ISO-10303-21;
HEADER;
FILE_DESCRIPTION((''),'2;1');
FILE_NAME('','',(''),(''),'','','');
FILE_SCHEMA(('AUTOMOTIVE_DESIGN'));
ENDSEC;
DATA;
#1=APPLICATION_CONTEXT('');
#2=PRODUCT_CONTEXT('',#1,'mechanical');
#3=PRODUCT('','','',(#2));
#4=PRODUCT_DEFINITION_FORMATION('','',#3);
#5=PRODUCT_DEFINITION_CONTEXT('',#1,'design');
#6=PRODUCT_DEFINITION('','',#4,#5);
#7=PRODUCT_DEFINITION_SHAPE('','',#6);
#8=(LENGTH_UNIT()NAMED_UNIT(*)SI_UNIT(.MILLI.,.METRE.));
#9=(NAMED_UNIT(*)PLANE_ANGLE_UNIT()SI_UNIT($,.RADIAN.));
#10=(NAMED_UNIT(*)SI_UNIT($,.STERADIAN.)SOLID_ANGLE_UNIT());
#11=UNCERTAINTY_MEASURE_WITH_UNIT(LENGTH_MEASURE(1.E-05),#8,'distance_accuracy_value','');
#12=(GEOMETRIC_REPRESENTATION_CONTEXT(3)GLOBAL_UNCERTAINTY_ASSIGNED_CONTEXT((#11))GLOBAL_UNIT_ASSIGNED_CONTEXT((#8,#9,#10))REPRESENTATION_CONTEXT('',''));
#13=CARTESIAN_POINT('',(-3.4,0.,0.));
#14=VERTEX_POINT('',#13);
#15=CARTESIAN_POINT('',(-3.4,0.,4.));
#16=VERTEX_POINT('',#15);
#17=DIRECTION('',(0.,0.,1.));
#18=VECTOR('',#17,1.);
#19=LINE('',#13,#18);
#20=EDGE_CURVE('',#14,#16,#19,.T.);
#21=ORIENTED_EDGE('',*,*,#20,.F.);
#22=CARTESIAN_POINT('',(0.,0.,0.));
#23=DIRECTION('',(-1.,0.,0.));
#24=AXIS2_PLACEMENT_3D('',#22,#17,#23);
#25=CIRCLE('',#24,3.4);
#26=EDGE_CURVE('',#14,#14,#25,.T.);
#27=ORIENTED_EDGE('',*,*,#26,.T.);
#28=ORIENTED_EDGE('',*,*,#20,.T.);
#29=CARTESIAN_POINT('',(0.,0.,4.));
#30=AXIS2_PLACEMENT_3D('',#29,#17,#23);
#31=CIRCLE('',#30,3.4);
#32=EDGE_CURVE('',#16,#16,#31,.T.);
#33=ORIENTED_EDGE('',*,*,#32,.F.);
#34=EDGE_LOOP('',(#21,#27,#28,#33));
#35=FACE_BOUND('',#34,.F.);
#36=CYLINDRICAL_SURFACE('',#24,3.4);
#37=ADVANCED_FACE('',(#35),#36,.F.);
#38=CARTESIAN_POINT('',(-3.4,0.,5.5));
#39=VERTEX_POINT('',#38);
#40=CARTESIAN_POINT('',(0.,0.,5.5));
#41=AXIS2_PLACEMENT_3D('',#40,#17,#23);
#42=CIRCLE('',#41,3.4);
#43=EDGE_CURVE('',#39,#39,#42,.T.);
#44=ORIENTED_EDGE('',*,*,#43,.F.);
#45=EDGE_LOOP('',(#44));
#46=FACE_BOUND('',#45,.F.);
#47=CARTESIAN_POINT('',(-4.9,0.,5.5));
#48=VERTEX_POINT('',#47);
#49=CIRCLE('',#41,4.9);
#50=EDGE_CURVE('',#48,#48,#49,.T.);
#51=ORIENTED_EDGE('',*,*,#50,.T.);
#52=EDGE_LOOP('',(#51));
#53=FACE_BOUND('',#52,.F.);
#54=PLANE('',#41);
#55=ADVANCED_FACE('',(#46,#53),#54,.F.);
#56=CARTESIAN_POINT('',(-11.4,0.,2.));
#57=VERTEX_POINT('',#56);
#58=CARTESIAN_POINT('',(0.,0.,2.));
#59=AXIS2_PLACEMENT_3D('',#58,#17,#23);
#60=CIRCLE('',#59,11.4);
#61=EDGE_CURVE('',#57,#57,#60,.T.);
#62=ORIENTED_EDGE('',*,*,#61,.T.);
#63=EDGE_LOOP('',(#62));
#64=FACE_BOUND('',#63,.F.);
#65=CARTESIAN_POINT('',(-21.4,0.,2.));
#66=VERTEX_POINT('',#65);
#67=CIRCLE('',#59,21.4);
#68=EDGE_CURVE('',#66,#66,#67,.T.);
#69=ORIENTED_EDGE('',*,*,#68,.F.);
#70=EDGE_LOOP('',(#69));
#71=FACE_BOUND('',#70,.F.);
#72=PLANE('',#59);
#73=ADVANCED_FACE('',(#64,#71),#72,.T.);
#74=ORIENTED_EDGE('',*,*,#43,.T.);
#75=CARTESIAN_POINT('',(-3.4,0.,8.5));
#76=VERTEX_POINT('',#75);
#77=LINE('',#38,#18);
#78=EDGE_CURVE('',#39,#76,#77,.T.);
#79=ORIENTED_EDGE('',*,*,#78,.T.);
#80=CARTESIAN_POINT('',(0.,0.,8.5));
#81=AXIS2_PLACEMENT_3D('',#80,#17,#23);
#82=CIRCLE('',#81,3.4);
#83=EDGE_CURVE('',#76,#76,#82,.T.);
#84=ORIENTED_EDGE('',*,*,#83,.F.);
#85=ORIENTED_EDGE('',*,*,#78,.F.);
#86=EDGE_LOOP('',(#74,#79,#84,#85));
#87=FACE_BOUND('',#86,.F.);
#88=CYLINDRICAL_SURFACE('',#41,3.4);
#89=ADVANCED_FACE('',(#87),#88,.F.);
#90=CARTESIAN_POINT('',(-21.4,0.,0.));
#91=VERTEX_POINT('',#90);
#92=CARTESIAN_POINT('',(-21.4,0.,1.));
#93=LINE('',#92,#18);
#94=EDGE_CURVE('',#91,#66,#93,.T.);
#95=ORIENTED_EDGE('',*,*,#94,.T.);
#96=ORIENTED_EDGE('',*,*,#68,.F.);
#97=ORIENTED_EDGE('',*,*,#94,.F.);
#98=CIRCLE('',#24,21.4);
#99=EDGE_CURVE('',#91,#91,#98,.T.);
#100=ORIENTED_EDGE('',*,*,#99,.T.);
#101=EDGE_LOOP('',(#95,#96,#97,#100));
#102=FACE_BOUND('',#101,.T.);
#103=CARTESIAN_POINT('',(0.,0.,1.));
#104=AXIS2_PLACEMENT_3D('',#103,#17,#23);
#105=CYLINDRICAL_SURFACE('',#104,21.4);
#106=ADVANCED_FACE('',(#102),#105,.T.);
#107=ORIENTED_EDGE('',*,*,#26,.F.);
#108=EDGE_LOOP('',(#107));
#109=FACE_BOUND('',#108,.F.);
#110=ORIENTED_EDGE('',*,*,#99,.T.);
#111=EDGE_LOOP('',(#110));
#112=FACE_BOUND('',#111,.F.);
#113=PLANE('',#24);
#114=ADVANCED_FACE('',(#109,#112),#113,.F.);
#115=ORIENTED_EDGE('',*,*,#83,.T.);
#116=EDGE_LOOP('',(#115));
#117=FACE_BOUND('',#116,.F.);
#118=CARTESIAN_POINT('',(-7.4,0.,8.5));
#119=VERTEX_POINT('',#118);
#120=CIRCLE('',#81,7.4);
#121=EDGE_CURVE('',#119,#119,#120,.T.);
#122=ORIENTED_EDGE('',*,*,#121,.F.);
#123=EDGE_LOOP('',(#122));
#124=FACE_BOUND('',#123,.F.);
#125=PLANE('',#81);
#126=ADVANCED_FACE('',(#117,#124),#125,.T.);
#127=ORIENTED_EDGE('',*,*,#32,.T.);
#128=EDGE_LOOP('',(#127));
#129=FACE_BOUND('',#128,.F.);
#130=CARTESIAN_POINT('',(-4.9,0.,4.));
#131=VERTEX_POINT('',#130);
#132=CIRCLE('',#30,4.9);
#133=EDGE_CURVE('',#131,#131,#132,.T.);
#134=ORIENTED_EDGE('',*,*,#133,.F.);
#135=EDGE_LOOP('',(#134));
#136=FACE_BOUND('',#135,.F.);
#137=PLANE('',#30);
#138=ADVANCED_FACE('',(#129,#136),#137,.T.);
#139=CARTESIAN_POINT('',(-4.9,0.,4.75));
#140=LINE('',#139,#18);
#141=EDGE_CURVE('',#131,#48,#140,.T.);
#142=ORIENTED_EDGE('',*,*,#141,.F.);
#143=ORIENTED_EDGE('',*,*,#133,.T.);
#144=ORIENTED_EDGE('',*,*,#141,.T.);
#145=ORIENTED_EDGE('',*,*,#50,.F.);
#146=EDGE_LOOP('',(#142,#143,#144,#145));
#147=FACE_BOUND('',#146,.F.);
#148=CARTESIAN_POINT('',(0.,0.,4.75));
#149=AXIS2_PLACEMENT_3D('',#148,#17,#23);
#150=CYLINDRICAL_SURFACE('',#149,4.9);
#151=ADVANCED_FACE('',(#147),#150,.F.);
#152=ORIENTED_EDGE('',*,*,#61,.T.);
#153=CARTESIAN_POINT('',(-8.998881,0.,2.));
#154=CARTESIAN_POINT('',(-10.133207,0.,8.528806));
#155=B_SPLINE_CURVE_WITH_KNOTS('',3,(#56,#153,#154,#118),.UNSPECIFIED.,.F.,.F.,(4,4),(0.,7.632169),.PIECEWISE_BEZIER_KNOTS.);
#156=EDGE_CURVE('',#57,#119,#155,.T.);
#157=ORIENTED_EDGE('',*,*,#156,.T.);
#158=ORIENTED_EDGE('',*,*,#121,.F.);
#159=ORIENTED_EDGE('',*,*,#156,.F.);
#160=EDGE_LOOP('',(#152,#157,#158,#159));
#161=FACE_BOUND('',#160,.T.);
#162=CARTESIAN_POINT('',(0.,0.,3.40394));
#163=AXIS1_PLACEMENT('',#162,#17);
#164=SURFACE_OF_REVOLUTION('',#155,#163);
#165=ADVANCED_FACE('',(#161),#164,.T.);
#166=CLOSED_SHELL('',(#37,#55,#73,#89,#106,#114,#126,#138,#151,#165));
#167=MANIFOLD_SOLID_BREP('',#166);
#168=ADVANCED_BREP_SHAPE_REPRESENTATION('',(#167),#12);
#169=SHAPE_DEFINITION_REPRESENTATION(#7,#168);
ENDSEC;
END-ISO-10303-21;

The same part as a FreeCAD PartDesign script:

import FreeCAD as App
import Part
import Sketcher
from FreeCAD import Vector
Q = App.Units.Quantity

doc = App.newDocument("Part")
body = doc.addObject("PartDesign::Body", "Body")

# Sketch on XZ plane
sketch1 = body.newObject("Sketcher::SketchObject", "Sketch")
sketch1.AttachmentSupport = (doc.getObject("XZ_Plane"), [""])
sketch1.MapMode = "FlatFace"
sketch1.addGeometry(Part.LineSegment(Vector(-3.4, 0, 0), Vector(-3.4, 4, 0)), False)
sketch1.addGeometry(Part.LineSegment(Vector(-3.4, 4, 0), Vector(-4.9, 4, 0)), False)
sketch1.addGeometry(Part.LineSegment(Vector(-4.9, 4, 0), Vector(-4.9, 5.5, 0)), False)
sketch1.addGeometry(Part.LineSegment(Vector(-4.9, 5.5, 0), Vector(-3.4, 5.5, 0)), False)
sketch1.addGeometry(Part.LineSegment(Vector(-3.4, 5.5, 0), Vector(-3.4, 8.5, 0)), False)
sketch1.addGeometry(Part.LineSegment(Vector(-3.4, 8.5, 0), Vector(-7.4, 8.5, 0)), False)
sketch1.addGeometry(Part.BSplineCurve([Vector(-11.4, 2, 0), Vector(-8.998881, 2, 0), Vector(-10.133207, 8.528806, 0), Vector(-7.4, 8.5, 0)], [4, 4], [0, 7.632169], False, 3, [1, 1, 1, 1], False), False)
sketch1.addGeometry(Part.LineSegment(Vector(-11.4, 2, 0), Vector(-21.4, 2, 0)), False)
sketch1.addGeometry(Part.LineSegment(Vector(-21.4, 2, 0), Vector(-21.4, 0, 0)), False)
sketch1.addGeometry(Part.LineSegment(Vector(-21.4, 0, 0), Vector(-3.4, 0, 0)), False)
sketch1.addConstraint(Sketcher.Constraint("Block", 6))
sketch1.addConstraint(Sketcher.Constraint("Coincident", 0, 2, 1, 1))
sketch1.addConstraint(Sketcher.Constraint("Coincident", 1, 2, 2, 1))
sketch1.addConstraint(Sketcher.Constraint("Coincident", 2, 2, 3, 1))
sketch1.addConstraint(Sketcher.Constraint("Coincident", 3, 2, 4, 1))
sketch1.addConstraint(Sketcher.Constraint("Coincident", 4, 2, 5, 1))
sketch1.addConstraint(Sketcher.Constraint("Coincident", 5, 2, 6, 2))
sketch1.addConstraint(Sketcher.Constraint("Coincident", 6, 1, 7, 1))
sketch1.addConstraint(Sketcher.Constraint("Coincident", 7, 2, 8, 1))
sketch1.addConstraint(Sketcher.Constraint("Coincident", 8, 2, 9, 1))
sketch1.addConstraint(Sketcher.Constraint("Coincident", 9, 2, 0, 1))
sketch1.addConstraint(Sketcher.Constraint("Vertical", 0))
sketch1.addConstraint(Sketcher.Constraint("Horizontal", 1))
sketch1.addConstraint(Sketcher.Constraint("Vertical", 2))
sketch1.addConstraint(Sketcher.Constraint("Horizontal", 3))
sketch1.addConstraint(Sketcher.Constraint("Vertical", 4))
sketch1.addConstraint(Sketcher.Constraint("Horizontal", 5))
sketch1.addConstraint(Sketcher.Constraint("Horizontal", 7))
sketch1.addConstraint(Sketcher.Constraint("Vertical", 8))
sketch1.addConstraint(Sketcher.Constraint("Horizontal", 9))
sketch1.addConstraint(Sketcher.Constraint("PointOnObject", 8, 2, -1))
sketch1.addConstraint(Sketcher.Constraint("Vertical", 0, 2, 3, 2))
sketch1.addConstraint(Sketcher.Constraint("Equal", 5, 0))
sketch1.addConstraint(Sketcher.Constraint("Equal", 3, 2))
sketch1.addConstraint(Sketcher.Constraint("DistanceX", 5, 2, 5, 1, Q("4 mm")))
sketch1.addConstraint(Sketcher.Constraint("DistanceX", 7, 2, 7, 1, Q("10 mm")))
sketch1.addConstraint(Sketcher.Constraint("DistanceY", 4, 1, 4, 2, Q("3 mm")))
revolution = body.newObject("PartDesign::Revolution", "Revolution")
revolution.Profile = sketch1
revolution.ReferenceAxis = (sketch1, ["V_Axis"])
revolution.Angle = 360

doc.recompute()
